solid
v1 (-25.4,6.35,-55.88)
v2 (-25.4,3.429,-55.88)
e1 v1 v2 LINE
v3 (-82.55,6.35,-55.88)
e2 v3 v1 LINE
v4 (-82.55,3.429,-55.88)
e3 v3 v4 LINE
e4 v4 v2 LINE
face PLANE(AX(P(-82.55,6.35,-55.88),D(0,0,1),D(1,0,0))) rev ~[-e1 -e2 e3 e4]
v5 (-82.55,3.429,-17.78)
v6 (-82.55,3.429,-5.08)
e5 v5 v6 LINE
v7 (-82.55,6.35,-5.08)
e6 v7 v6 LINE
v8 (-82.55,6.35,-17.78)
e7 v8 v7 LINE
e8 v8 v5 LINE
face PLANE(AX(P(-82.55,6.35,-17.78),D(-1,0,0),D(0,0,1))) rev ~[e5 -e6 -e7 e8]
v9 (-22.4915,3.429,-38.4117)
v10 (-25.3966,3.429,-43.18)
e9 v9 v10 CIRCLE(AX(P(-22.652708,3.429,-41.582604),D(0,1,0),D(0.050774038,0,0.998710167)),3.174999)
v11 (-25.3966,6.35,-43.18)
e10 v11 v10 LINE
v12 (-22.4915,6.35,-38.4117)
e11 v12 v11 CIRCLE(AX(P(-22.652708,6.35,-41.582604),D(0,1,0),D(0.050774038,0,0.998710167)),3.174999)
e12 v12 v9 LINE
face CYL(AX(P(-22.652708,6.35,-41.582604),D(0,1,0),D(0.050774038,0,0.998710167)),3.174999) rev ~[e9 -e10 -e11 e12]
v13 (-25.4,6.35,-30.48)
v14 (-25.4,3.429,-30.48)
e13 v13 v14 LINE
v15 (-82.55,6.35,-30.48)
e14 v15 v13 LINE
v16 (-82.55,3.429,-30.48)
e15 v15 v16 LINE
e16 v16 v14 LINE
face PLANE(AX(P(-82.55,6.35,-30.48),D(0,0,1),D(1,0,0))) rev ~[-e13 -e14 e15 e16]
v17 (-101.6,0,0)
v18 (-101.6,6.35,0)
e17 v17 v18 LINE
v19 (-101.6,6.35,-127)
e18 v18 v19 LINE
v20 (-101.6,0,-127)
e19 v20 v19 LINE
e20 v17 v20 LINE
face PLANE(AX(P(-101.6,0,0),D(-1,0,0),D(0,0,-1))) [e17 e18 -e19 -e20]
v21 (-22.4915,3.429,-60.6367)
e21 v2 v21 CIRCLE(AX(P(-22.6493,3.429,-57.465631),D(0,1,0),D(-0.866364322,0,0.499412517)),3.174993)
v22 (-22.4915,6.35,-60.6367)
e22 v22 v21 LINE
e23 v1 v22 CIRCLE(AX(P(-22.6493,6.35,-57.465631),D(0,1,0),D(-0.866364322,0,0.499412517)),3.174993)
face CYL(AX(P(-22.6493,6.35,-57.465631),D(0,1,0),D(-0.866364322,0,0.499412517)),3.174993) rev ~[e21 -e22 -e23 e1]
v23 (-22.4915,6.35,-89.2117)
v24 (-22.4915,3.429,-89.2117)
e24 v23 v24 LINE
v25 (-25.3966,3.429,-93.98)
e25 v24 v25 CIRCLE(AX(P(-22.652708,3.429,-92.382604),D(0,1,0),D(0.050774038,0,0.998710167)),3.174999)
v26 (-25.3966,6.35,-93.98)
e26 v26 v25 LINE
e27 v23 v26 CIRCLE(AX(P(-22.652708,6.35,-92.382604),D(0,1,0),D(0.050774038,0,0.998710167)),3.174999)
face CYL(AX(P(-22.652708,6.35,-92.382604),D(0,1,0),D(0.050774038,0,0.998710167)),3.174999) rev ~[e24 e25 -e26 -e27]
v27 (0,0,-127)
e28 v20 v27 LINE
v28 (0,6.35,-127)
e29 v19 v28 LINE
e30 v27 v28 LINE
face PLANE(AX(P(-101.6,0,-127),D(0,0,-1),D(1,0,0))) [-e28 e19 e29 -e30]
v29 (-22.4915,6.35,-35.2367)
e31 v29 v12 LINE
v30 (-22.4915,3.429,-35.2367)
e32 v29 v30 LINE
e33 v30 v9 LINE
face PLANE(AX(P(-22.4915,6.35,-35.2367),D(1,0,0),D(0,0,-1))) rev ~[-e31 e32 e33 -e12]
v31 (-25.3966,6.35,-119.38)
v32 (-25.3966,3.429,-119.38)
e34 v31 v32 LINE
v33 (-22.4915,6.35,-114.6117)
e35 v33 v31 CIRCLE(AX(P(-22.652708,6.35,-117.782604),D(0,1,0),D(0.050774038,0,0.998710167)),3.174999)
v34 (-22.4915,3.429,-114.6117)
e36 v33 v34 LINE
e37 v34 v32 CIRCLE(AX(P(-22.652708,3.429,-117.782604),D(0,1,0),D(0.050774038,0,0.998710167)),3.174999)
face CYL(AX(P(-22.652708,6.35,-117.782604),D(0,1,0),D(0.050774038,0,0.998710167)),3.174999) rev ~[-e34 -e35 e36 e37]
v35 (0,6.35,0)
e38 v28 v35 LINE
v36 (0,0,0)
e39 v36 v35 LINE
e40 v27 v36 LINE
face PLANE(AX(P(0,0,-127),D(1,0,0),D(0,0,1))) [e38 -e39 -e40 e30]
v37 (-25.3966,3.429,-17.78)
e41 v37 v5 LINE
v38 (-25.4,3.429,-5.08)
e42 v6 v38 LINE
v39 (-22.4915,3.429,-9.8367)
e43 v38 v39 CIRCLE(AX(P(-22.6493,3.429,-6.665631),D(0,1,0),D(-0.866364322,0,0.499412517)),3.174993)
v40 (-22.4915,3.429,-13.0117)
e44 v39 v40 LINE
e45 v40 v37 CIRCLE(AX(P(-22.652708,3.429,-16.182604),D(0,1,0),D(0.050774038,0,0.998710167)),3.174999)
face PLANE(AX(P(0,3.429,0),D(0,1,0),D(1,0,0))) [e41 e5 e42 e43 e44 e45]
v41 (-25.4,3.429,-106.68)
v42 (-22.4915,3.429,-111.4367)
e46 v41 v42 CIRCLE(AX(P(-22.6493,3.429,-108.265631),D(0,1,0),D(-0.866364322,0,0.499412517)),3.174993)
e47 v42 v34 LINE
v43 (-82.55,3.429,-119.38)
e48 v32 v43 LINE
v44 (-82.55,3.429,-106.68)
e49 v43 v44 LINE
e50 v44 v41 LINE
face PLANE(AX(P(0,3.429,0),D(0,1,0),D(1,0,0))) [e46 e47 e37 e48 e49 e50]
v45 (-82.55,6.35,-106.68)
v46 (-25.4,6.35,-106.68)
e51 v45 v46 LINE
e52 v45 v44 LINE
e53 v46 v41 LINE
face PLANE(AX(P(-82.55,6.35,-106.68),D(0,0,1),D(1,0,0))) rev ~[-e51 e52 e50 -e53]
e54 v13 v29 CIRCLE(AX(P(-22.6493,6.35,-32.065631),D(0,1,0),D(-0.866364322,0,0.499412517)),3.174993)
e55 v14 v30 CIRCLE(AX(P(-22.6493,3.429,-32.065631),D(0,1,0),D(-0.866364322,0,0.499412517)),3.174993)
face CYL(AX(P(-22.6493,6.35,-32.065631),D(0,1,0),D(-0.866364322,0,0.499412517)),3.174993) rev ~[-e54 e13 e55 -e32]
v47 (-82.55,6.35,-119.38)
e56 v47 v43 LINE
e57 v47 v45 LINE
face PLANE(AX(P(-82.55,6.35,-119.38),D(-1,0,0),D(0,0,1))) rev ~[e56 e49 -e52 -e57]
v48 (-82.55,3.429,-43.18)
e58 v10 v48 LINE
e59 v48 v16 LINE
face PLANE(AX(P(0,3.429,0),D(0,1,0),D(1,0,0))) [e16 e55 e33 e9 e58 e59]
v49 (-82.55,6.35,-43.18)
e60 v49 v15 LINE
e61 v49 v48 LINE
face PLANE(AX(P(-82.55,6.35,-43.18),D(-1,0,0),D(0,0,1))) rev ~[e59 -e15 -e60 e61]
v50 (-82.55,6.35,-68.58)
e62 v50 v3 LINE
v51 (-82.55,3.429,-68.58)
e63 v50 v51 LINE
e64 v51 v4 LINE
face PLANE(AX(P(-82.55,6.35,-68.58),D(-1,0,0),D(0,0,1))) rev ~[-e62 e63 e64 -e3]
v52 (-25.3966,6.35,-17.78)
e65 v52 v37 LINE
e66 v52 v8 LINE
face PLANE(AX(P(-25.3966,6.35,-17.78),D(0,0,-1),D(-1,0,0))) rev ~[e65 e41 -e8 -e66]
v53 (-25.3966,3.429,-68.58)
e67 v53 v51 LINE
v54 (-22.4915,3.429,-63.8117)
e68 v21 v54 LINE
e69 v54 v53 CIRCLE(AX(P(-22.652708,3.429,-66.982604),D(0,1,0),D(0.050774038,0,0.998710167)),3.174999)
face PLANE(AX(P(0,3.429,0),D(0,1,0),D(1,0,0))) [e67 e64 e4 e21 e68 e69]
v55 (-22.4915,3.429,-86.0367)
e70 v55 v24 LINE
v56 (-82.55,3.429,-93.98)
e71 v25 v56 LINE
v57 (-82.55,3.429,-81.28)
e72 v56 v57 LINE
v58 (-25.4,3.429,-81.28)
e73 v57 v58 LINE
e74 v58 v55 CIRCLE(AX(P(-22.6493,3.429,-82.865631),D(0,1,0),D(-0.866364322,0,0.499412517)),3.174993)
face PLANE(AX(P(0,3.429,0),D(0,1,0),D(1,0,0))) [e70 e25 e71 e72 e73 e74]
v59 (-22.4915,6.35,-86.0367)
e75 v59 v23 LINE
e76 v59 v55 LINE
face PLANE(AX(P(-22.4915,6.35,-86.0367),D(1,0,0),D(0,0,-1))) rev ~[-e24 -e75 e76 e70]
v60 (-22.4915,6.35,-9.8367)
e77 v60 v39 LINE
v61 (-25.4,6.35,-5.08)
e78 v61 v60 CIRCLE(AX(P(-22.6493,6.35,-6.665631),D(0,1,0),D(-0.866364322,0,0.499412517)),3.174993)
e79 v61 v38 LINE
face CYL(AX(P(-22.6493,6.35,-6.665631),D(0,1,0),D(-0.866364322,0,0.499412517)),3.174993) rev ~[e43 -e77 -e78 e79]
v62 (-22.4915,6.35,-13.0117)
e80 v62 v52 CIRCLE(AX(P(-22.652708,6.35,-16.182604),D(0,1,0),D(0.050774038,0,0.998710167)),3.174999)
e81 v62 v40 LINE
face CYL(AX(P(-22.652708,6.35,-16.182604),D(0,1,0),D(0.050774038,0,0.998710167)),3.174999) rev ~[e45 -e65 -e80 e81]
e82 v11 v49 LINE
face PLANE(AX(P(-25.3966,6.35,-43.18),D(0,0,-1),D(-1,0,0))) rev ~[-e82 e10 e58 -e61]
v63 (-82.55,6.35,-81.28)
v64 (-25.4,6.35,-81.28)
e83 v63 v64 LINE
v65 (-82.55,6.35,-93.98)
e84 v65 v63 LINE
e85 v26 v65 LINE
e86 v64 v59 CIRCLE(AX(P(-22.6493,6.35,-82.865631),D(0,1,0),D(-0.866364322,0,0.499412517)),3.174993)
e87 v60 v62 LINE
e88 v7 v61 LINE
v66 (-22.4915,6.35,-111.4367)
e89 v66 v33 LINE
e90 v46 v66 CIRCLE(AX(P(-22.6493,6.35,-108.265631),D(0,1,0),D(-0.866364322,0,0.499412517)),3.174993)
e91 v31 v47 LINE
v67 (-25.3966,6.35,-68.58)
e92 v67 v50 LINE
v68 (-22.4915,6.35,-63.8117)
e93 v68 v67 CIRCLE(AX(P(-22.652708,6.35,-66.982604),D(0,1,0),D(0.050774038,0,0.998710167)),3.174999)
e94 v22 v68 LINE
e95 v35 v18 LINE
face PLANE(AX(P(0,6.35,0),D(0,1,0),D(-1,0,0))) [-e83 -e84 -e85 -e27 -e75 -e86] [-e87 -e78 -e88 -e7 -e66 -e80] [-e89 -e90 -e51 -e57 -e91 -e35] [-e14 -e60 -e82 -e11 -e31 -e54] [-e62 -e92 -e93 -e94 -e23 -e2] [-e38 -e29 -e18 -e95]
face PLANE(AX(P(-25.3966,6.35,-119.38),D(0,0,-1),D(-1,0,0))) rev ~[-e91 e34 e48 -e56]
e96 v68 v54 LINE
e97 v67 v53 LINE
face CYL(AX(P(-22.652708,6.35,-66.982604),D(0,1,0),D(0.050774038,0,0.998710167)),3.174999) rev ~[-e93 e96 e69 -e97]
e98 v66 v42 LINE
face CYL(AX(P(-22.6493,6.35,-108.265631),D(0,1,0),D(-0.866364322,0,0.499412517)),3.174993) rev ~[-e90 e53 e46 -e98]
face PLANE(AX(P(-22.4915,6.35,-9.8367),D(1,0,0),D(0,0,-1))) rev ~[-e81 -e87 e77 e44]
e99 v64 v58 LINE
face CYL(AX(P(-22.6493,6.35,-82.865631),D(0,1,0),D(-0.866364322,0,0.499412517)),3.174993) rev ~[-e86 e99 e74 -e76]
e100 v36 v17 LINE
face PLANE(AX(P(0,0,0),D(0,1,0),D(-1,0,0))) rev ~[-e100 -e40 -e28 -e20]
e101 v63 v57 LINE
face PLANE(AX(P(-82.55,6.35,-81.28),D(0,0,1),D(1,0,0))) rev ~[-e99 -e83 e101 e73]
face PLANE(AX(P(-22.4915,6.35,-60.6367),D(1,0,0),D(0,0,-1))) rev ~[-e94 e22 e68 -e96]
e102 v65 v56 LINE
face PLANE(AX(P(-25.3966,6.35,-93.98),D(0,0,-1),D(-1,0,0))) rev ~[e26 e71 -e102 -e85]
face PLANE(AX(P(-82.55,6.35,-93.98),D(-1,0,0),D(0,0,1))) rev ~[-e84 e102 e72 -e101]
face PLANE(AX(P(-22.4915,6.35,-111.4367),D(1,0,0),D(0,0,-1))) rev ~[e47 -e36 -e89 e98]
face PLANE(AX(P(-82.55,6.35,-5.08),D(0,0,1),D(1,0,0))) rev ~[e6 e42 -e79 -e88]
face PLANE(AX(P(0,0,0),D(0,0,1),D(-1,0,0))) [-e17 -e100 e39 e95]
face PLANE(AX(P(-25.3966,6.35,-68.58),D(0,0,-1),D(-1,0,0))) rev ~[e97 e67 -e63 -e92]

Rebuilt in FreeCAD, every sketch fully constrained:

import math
import FreeCAD as App
import Part
import Sketcher

V = App.Vector
Q = App.Units.Quantity

doc = App.newDocument("Part")
body = doc.addObject("PartDesign::Body", "Body")

sketch1 = doc.addObject("Sketcher::SketchObject", "Sketch")
body.addObject(sketch1)
sketch1.AttachmentSupport = (doc.XZ_Plane, [""])
sketch1.MapMode = "FlatFace"
sketch1.addGeometry([
    Part.LineSegment(V(-102, 0, 0), V(0, 0, 0)),
    Part.LineSegment(V(0, 0, 0), V(0, -127, 0)),
    Part.LineSegment(V(0, -127, 0), V(-102, -127, 0)),
    Part.LineSegment(V(-102, -127, 0), V(-102, 0, 0)),
], False)
sketch1.addConstraint([
    Sketcher.Constraint("Coincident", 0, 2, 1, 1),
    Sketcher.Constraint("Coincident", 1, 2, 2, 1),
    Sketcher.Constraint("Coincident", 2, 2, 3, 1),
    Sketcher.Constraint("Coincident", 3, 2, 0, 1),
    Sketcher.Constraint("Horizontal", 0),
    Sketcher.Constraint("Vertical", 1),
    Sketcher.Constraint("Horizontal", 2),
    Sketcher.Constraint("Vertical", 3),
    Sketcher.Constraint("Coincident", 0, 2, -1, 1),
    Sketcher.Constraint("DistanceX", 0, 1, 0, 2, Q("4 in")),
    Sketcher.Constraint("DistanceY", 1, 2, 1, 1, Q("5 in")),
])
pad1 = doc.addObject("PartDesign::Pad", "Pad")
body.addObject(pad1)
pad1.Profile = sketch1
pad1.Length = Q("0.25 in")
pad1.Reversed = True

sketch2 = doc.addObject("Sketcher::SketchObject", "Sketch001")
body.addObject(sketch2)
sketch2.AttachmentSupport = (doc.XZ_Plane, [""])
sketch2.MapMode = "FlatFace"
sketch2.AttachmentOffset = App.Placement(V(0, 0, -0.25 * 25.4), App.Rotation())
sketch2.addGeometry([
    Part.LineSegment(V(-82.5, -17.8, 0), V(-82.5, -5.1, 0)),
    Part.LineSegment(V(-82.5, -5.1, 0), V(-25.4, -5.1, 0)),
    Part.ArcOfCircle(Part.Circle(V(-22.6, -6.7, 0), V(0, 0, 1), 3.2), math.radians(-87), math.radians(150)),
    Part.LineSegment(V(-22.5, -9.8, 0), V(-22.5, -13, 0)),
    Part.ArcOfCircle(Part.Circle(V(-22.7, -16.2, 0), V(0, 0, 1), 3.2), math.radians(-150), math.radians(87)),
    Part.LineSegment(V(-25.4, -17.8, 0), V(-82.5, -17.8, 0)),
    Part.LineSegment(V(-82.5, -43.2, 0), V(-82.5, -30.5, 0)),
    Part.LineSegment(V(-82.5, -30.5, 0), V(-25.4, -30.5, 0)),
    Part.ArcOfCircle(Part.Circle(V(-22.6, -32.1, 0), V(0, 0, 1), 3.2), math.radians(-87), math.radians(150)),
    Part.LineSegment(V(-22.5, -35.2, 0), V(-22.5, -38.4, 0)),
    Part.ArcOfCircle(Part.Circle(V(-22.7, -41.6, 0), V(0, 0, 1), 3.2), math.radians(-150), math.radians(87)),
    Part.LineSegment(V(-25.4, -43.2, 0), V(-82.5, -43.2, 0)),
    Part.LineSegment(V(-82.5, -68.6, 0), V(-82.5, -55.9, 0)),
    Part.LineSegment(V(-82.5, -55.9, 0), V(-25.4, -55.9, 0)),
    Part.ArcOfCircle(Part.Circle(V(-22.6, -57.5, 0), V(0, 0, 1), 3.2), math.radians(-87), math.radians(150)),
    Part.LineSegment(V(-22.5, -60.6, 0), V(-22.5, -63.8, 0)),
    Part.ArcOfCircle(Part.Circle(V(-22.7, -67, 0), V(0, 0, 1), 3.2), math.radians(-150), math.radians(87)),
    Part.LineSegment(V(-25.4, -68.6, 0), V(-82.5, -68.6, 0)),
    Part.LineSegment(V(-82.5, -94, 0), V(-82.5, -81.3, 0)),
    Part.LineSegment(V(-82.5, -81.3, 0), V(-25.4, -81.3, 0)),
    Part.ArcOfCircle(Part.Circle(V(-22.6, -82.9, 0), V(0, 0, 1), 3.2), math.radians(-87), math.radians(150)),
    Part.LineSegment(V(-22.5, -86, 0), V(-22.5, -89.2, 0)),
    Part.ArcOfCircle(Part.Circle(V(-22.7, -92.4, 0), V(0, 0, 1), 3.2), math.radians(-150), math.radians(87)),
    Part.LineSegment(V(-25.4, -94, 0), V(-82.5, -94, 0)),
    Part.LineSegment(V(-82.5, -119.4, 0), V(-82.5, -106.7, 0)),
    Part.LineSegment(V(-82.5, -106.7, 0), V(-25.4, -106.7, 0)),
    Part.ArcOfCircle(Part.Circle(V(-22.6, -108.3, 0), V(0, 0, 1), 3.2), math.radians(-87), math.radians(150)),
    Part.LineSegment(V(-22.5, -111.4, 0), V(-22.5, -114.6, 0)),
    Part.ArcOfCircle(Part.Circle(V(-22.7, -117.8, 0), V(0, 0, 1), 3.2), math.radians(-150), math.radians(87)),
    Part.LineSegment(V(-25.4, -119.4, 0), V(-82.5, -119.4, 0)),
], False)
sketch2.addConstraint([
    Sketcher.Constraint("Coincident", 0, 2, 1, 1),
    Sketcher.Constraint("Coincident", 1, 2, 2, 2),
    Sketcher.Constraint("Coincident", 2, 1, 3, 1),
    Sketcher.Constraint("Coincident", 3, 2, 4, 2),
    Sketcher.Constraint("Coincident", 4, 1, 5, 1),
    Sketcher.Constraint("Coincident", 5, 2, 0, 1),
    Sketcher.Constraint("Coincident", 6, 2, 7, 1),
    Sketcher.Constraint("Coincident", 7, 2, 8, 2),
    Sketcher.Constraint("Coincident", 8, 1, 9, 1),
    Sketcher.Constraint("Coincident", 9, 2, 10, 2),
    Sketcher.Constraint("Coincident", 10, 1, 11, 1),
    Sketcher.Constraint("Coincident", 11, 2, 6, 1),
    Sketcher.Constraint("Coincident", 12, 2, 13, 1),
    Sketcher.Constraint("Coincident", 13, 2, 14, 2),
    Sketcher.Constraint("Coincident", 14, 1, 15, 1),
    Sketcher.Constraint("Coincident", 15, 2, 16, 2),
    Sketcher.Constraint("Coincident", 16, 1, 17, 1),
    Sketcher.Constraint("Coincident", 17, 2, 12, 1),
    Sketcher.Constraint("Coincident", 18, 2, 19, 1),
    Sketcher.Constraint("Coincident", 19, 2, 20, 2),
    Sketcher.Constraint("Coincident", 20, 1, 21, 1),
    Sketcher.Constraint("Coincident", 21, 2, 22, 2),
    Sketcher.Constraint("Coincident", 22, 1, 23, 1),
    Sketcher.Constraint("Coincident", 23, 2, 18, 1),
    Sketcher.Constraint("Coincident", 24, 2, 25, 1),
    Sketcher.Constraint("Coincident", 25, 2, 26, 2),
    Sketcher.Constraint("Coincident", 26, 1, 27, 1),
    Sketcher.Constraint("Coincident", 27, 2, 28, 2),
    Sketcher.Constraint("Coincident", 28, 1, 29, 1),
    Sketcher.Constraint("Coincident", 29, 2, 24, 1),
    Sketcher.Constraint("Vertical", 0),
    Sketcher.Constraint("Horizontal", 1),
    Sketcher.Constraint("Vertical", 3),
    Sketcher.Constraint("Horizontal", 5),
    Sketcher.Constraint("Vertical", 6),
    Sketcher.Constraint("Horizontal", 7),
    Sketcher.Constraint("Vertical", 9),
    Sketcher.Constraint("Horizontal", 11),
    Sketcher.Constraint("Vertical", 12),
    Sketcher.Constraint("Horizontal", 13),
    Sketcher.Constraint("Vertical", 15),
    Sketcher.Constraint("Horizontal", 17),
    Sketcher.Constraint("Vertical", 18),
    Sketcher.Constraint("Horizontal", 19),
    Sketcher.Constraint("Vertical", 21),
    Sketcher.Constraint("Horizontal", 23),
    Sketcher.Constraint("Vertical", 24),
    Sketcher.Constraint("Horizontal", 25),
    Sketcher.Constraint("Vertical", 27),
    Sketcher.Constraint("Horizontal", 29),
    Sketcher.Constraint("Equal", 2, 4),
    Sketcher.Constraint("Equal", 4, 8),
    Sketcher.Constraint("Equal", 8, 10),
    Sketcher.Constraint("Equal", 10, 14),
    Sketcher.Constraint("Equal", 14, 16),
    Sketcher.Constraint("Equal", 16, 20),
    Sketcher.Constraint("Equal", 20, 22),
    Sketcher.Constraint("Equal", 22, 26),
    Sketcher.Constraint("Equal", 26, 28),
    Sketcher.Constraint("Vertical", 2, 3, 8, 3),
    Sketcher.Constraint("Vertical", 4, 3, 10, 3),
    Sketcher.Constraint("Vertical", 8, 3, 14, 3),
    Sketcher.Constraint("Vertical", 10, 3, 16, 3),
    Sketcher.Constraint("Vertical", 14, 3, 20, 3),
    Sketcher.Constraint("Vertical", 16, 3, 22, 3),
    Sketcher.Constraint("Vertical", 20, 3, 26, 3),
    Sketcher.Constraint("Vertical", 22, 3, 28, 3),
    Sketcher.Constraint("Vertical", 5, 2, 6, 2),
    Sketcher.Constraint("Vertical", 1, 2, 7, 2),
    Sketcher.Constraint("Vertical", 3, 2, 8, 1),
    Sketcher.Constraint("Vertical", 4, 1, 10, 1),
    Sketcher.Constraint("Vertical", 11, 2, 12, 2),
    Sketcher.Constraint("Vertical", 7, 2, 13, 2),
    Sketcher.Constraint("Vertical", 9, 2, 14, 1),
    Sketcher.Constraint("Vertical", 10, 1, 16, 1),
    Sketcher.Constraint("Vertical", 17, 2, 18, 2),
    Sketcher.Constraint("Vertical", 13, 2, 19, 2),
    Sketcher.Constraint("Vertical", 15, 2, 20, 1),
    Sketcher.Constraint("Vertical", 16, 1, 22, 1),
    Sketcher.Constraint("Vertical", 23, 2, 24, 2),
    Sketcher.Constraint("Vertical", 19, 2, 25, 2),
    Sketcher.Constraint("Vertical", 21, 2, 26, 1),
    Sketcher.Constraint("Vertical", 22, 1, 28, 1),
    Sketcher.Constraint("Equal", 0, 6),
    Sketcher.Constraint("Equal", 6, 12),
    Sketcher.Constraint("Equal", 12, 18),
    Sketcher.Constraint("Equal", 18, 24),
    Sketcher.Constraint("DistanceY", 0, 1, 0, 2, Q("0.5 in")),
    Sketcher.Constraint("DistanceX", 1, 2, -1, 1, Q("1 in")),
    Sketcher.Constraint("Radius", 2, Q("0.125 in")),
    Sketcher.Constraint("DistanceY", 8, 3, 2, 3, Q("1 in")),
    Sketcher.Constraint("DistanceY", 14, 3, 8, 3, Q("1 in")),
    Sketcher.Constraint("DistanceY", 20, 3, 14, 3, Q("1 in")),
    Sketcher.Constraint("DistanceY", 26, 3, 20, 3, Q("1 in")),
    Sketcher.Constraint("DistanceX", 1, 1, 1, 2, Q("2.25 in")),
    Sketcher.Constraint("DistanceY", 0, 2, -1, 1, Q("0.2 in")),
    Sketcher.Constraint("DistanceY", 3, 2, 3, 1, Q("0.125 in")),
    Sketcher.Constraint("DistanceX", 5, 2, 5, 1, 57.1534),
    Sketcher.Constraint("DistanceX", 2, 3, -1, 1, Q("0.8917 in")),
    Sketcher.Constraint("DistanceY", 4, 3, -1, 1, Q("0.6371 in")),
])
pocket1 = doc.addObject("PartDesign::Pocket", "Pocket")
body.addObject(pocket1)
pocket1.Profile = sketch2
pocket1.Length = Q("0.115 in")
pocket1.Reversed = True

doc.recompute()
